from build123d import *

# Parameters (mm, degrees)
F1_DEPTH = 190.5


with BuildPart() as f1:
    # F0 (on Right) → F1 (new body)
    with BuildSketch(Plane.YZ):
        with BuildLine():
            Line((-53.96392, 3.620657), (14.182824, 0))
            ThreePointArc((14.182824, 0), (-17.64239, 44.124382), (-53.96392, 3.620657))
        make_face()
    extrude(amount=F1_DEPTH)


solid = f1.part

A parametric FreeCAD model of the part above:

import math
import FreeCAD as App
import Part
import Sketcher

V = App.Vector
Q = App.Units.Quantity

doc = App.newDocument("Part")
body = doc.addObject("PartDesign::Body", "Body")

sketch1 = doc.addObject("Sketcher::SketchObject", "Sketch")
body.addObject(sketch1)
sketch1.AttachmentSupport = (doc.YZ_Plane, [""])
sketch1.MapMode = "FlatFace"
sketch1.addGeometry(Part.LineSegment(V(-54, 4, 0), V(14, 0, 0)), False)
sketch1.addGeometry(Part.ArcOfCircle(Part.Circle(V(-19, 9, 0), V(0, 0, 1), 35), math.radians(-15), math.radians(189)), False)
sketch1.addConstraint(Sketcher.Constraint("Coincident", 0, 1, 1, 2))
sketch1.addConstraint(Sketcher.Constraint("Coincident", 1, 1, 0, 2))
sketch1.addConstraint(Sketcher.Constraint("PointOnObject", 1, 1, -1))
sketch1.addConstraint(Sketcher.Constraint("Radius", 1, Q("1.375 in")))
sketch1.addConstraint(Sketcher.Constraint("Distance", 0, 68.24286))
sketch1.addConstraint(Sketcher.Constraint("DistanceX", 1, 3, -1, 1, 19.495352))
sketch1.addConstraint(Sketcher.Constraint("DistanceY", -1, 1, 1, 3, 9.248572))
pad1 = doc.addObject("PartDesign::Pad", "Pad")
body.addObject(pad1)
pad1.Profile = sketch1
pad1.Length = Q("7.5 in")

doc.recompute()
